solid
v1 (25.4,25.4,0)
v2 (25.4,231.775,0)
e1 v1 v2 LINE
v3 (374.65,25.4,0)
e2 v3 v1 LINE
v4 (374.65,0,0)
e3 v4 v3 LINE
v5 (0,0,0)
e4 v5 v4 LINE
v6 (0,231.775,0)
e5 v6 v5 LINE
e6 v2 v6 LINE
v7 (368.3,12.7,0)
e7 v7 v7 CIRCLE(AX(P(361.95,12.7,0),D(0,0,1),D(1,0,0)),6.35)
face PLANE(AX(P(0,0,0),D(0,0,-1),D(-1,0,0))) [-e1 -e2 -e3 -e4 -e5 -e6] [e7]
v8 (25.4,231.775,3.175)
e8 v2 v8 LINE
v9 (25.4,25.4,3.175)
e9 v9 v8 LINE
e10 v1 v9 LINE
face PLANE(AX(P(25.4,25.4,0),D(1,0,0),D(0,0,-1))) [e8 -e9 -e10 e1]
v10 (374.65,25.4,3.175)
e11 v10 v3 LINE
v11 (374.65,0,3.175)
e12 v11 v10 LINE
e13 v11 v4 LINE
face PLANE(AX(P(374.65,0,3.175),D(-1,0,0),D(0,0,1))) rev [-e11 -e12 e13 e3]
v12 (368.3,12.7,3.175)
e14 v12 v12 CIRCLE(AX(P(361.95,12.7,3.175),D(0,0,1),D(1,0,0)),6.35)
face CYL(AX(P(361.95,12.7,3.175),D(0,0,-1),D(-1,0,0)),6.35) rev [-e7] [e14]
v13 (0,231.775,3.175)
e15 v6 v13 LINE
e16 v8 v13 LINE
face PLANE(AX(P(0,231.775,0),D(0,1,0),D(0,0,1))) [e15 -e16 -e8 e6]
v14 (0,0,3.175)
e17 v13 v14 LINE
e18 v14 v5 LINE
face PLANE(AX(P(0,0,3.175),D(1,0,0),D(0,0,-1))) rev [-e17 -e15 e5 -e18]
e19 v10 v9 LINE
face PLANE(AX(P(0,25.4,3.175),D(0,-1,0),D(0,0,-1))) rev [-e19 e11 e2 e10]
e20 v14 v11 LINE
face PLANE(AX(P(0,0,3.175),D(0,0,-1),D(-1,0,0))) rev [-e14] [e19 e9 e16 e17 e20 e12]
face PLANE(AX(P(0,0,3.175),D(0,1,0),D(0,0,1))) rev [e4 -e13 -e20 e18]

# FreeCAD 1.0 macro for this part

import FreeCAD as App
import Part
import Sketcher
from FreeCAD import Vector
Q = App.Units.Quantity

doc = App.newDocument("Part")
body = doc.addObject("PartDesign::Body", "Body")

# Sketch on XY plane
sketch1 = doc.addObject("Sketcher::SketchObject", "Sketch")
body.addObject(sketch1)
sketch1.AttachmentSupport = (doc.XY_Plane, [""])
sketch1.MapMode = "FlatFace"
sketch1.addGeometry(Part.LineSegment(Vector(0, 25, 0), Vector(0, 0, 0)), False)
sketch1.addGeometry(Part.LineSegment(Vector(0, 0, 0), Vector(375, 0, 0)), False)
sketch1.addGeometry(Part.LineSegment(Vector(375, 0, 0), Vector(375, 25, 0)), False)
sketch1.addGeometry(Part.LineSegment(Vector(375, 25, 0), Vector(0, 25, 0)), False)
sketch1.addGeometry(Part.Circle(Vector(362, 13, 0), Vector(0, 0, 1), 6), False)
sketch1.addConstraint(Sketcher.Constraint("Coincident", 0, 2, 1, 1))
sketch1.addConstraint(Sketcher.Constraint("Coincident", 1, 2, 2, 1))
sketch1.addConstraint(Sketcher.Constraint("Coincident", 2, 2, 3, 1))
sketch1.addConstraint(Sketcher.Constraint("Coincident", 3, 2, 0, 1))
sketch1.addConstraint(Sketcher.Constraint("Vertical", 0))
sketch1.addConstraint(Sketcher.Constraint("Horizontal", 1))
sketch1.addConstraint(Sketcher.Constraint("Vertical", 2))
sketch1.addConstraint(Sketcher.Constraint("Horizontal", 3))
sketch1.addConstraint(Sketcher.Constraint("Coincident", 0, 2, -1, 1))
sketch1.addConstraint(Sketcher.Constraint("Diameter", 4, Q("0.5 in")))
sketch1.addConstraint(Sketcher.Constraint("DistanceY", 0, 2, 0, 1, Q("1 in")))
sketch1.addConstraint(Sketcher.Constraint("DistanceX", 1, 1, 1, 2, Q("14.75 in")))
sketch1.addConstraint(Sketcher.Constraint("DistanceY", -1, 1, 4, 3, Q("0.5 in")))
sketch1.addConstraint(Sketcher.Constraint("DistanceX", 4, 3, 1, 2, Q("0.5 in")))
pad1 = doc.addObject("PartDesign::Pad", "Pad")
body.addObject(pad1)
pad1.Profile = sketch1
pad1.Length = Q("0.125 in")

# Sketch on XY plane
sketch2 = doc.addObject("Sketcher::SketchObject", "Sketch001")
body.addObject(sketch2)
sketch2.AttachmentSupport = (doc.XY_Plane, [""])
sketch2.MapMode = "FlatFace"
sketch2.AttachmentOffset = App.Placement(Vector(0, 0, 0.125 * 25.4), App.Rotation())
sketch2.addGeometry(Part.LineSegment(Vector(0, 232, 0), Vector(0, 25, 0)), False)
sketch2.addGeometry(Part.LineSegment(Vector(0, 25, 0), Vector(25, 25, 0)), False)
sketch2.addGeometry(Part.LineSegment(Vector(25, 25, 0), Vector(25, 232, 0)), False)
sketch2.addGeometry(Part.LineSegment(Vector(25, 232, 0), Vector(0, 232, 0)), False)
sketch2.addConstraint(Sketcher.Constraint("Coincident", 0, 2, 1, 1))
sketch2.addConstraint(Sketcher.Constraint("Coincident", 1, 2, 2, 1))
sketch2.addConstraint(Sketcher.Constraint("Coincident", 2, 2, 3, 1))
sketch2.addConstraint(Sketcher.Constraint("Coincident", 3, 2, 0, 1))
sketch2.addConstraint(Sketcher.Constraint("Vertical", 0))
sketch2.addConstraint(Sketcher.Constraint("Horizontal", 1))
sketch2.addConstraint(Sketcher.Constraint("Vertical", 2))
sketch2.addConstraint(Sketcher.Constraint("Horizontal", 3))
sketch2.addConstraint(Sketcher.Constraint("PointOnObject", 0, 2, -2))
sketch2.addConstraint(Sketcher.Constraint("DistanceX", 1, 1, 1, 2, Q("1 in")))
sketch2.addConstraint(Sketcher.Constraint("DistanceY", -1, 1, 0, 2, Q("1 in")))
sketch2.addConstraint(Sketcher.Constraint("DistanceY", 0, 2, 0, 1, Q("8.125 in")))
pad2 = doc.addObject("PartDesign::Pad", "Pad001")
body.addObject(pad2)
pad2.Profile = sketch2
pad2.Length = Q("0.125 in")
pad2.Reversed = True

doc.recompute()
